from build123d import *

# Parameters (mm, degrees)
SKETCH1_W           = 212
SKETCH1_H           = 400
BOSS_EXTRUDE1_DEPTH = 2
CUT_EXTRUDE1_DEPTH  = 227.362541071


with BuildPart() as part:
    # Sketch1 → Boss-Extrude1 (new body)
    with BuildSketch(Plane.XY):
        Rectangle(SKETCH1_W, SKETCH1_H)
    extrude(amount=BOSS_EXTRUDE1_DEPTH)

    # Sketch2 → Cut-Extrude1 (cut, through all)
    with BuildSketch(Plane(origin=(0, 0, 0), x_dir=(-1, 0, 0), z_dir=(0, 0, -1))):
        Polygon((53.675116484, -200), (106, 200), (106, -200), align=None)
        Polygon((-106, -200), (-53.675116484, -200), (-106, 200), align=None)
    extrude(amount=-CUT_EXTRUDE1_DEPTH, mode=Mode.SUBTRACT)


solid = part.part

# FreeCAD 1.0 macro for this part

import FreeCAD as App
import Part
import Sketcher

V = App.Vector


def add_polygon(sketch, points):
    """Adds a closed chain of lines whose ends are joined by coincident constraints."""
    first, n = sketch.GeometryCount, len(points)
    for a, b in zip(points, points[1:] + points[:1]):
        sketch.addGeometry(Part.LineSegment(App.Vector(*a, 0), App.Vector(*b, 0)), False)
    for i in range(n):
        sketch.addConstraint(Sketcher.Constraint("Coincident", first + i, 2, first + (i + 1) % n, 1))

doc = App.newDocument("Part")
params = doc.addObject("Spreadsheet::Sheet", "Params")
for row, (alias, value) in enumerate([
    ("sketch1_width", "212 mm"),
    ("sketch1_height", "400 mm"),
    ("pad1_length", "2 mm"),
    ("sketch2_height", "400 mm"),
], start=1):
    params.set(f"A{row}", alias)
    params.set(f"B{row}", "=" + value)
    params.setAlias(f"B{row}", alias)

body = doc.addObject("PartDesign::Body", "Body")

# Sketch on XY plane
sketch1 = body.newObject("Sketcher::SketchObject", "Sketch")
sketch1.AttachmentSupport = (doc.getObject("XY_Plane"), [""])
sketch1.MapMode = "FlatFace"
add_polygon(sketch1, [(-106, 200), (-106, -200), (106, -200), (106, 200)])  # lines 0-3
sketch1.addConstraint(Sketcher.Constraint("Vertical", 0))
sketch1.addConstraint(Sketcher.Constraint("Horizontal", 1))
sketch1.addConstraint(Sketcher.Constraint("Vertical", 2))
sketch1.addConstraint(Sketcher.Constraint("Horizontal", 3))
sketch1.addConstraint(Sketcher.Constraint("Symmetric", 0, 2, 2, 2, -1, 1))
sketch1.addConstraint(Sketcher.Constraint("DistanceX", 1, 1, 1, 2, 212.0))
sketch1.addConstraint(Sketcher.Constraint("DistanceY", 0, 2, 0, 1, 400.0))
sketch1.setExpression("Constraints[9]", "Params.sketch1_width")
sketch1.setExpression("Constraints[10]", "Params.sketch1_height")
pad1 = body.newObject("PartDesign::Pad", "Pad")
pad1.Profile = sketch1
pad1.setExpression("Length", "Params.pad1_length")

# Sketch on XY plane
sketch2 = body.newObject("Sketcher::SketchObject", "Sketch001")
sketch2.AttachmentSupport = (doc.getObject("XY_Plane"), [""])
sketch2.MapMode = "FlatFace"
add_polygon(sketch2, [(-106, 200), (-53.675116, -200), (-106, -200)])  # lines 0-2
add_polygon(sketch2, [(106, -200), (53.675116, -200), (106, 200)])  # lines 3-5
sketch2.addConstraint(Sketcher.Constraint("Horizontal", 1))
sketch2.addConstraint(Sketcher.Constraint("Vertical", 2))
sketch2.addConstraint(Sketcher.Constraint("Horizontal", 3))
sketch2.addConstraint(Sketcher.Constraint("Vertical", 5))
sketch2.addConstraint(Sketcher.Constraint("Symmetric", 1, 2, 4, 2, -1, 1))
sketch2.addConstraint(Sketcher.Constraint("Symmetric", 0, 2, 3, 2, -2))
sketch2.addConstraint(Sketcher.Constraint("Horizontal", 2, 2, 4, 2))
sketch2.addConstraint(Sketcher.Constraint("DistanceY", 2, 1, 2, 2, 400.0))
sketch2.addConstraint(Sketcher.Constraint("DistanceX", 1, 2, -1, 1, 106.0))
sketch2.addConstraint(Sketcher.Constraint("Distance", 0, 403.40785))
sketch2.setExpression("Constraints[13]", "Params.sketch2_height")
pocket1 = body.newObject("PartDesign::Pocket", "Pocket")
pocket1.Profile = sketch2
pocket1.Type = "ThroughAll"
pocket1.Reversed = True

doc.recompute()
